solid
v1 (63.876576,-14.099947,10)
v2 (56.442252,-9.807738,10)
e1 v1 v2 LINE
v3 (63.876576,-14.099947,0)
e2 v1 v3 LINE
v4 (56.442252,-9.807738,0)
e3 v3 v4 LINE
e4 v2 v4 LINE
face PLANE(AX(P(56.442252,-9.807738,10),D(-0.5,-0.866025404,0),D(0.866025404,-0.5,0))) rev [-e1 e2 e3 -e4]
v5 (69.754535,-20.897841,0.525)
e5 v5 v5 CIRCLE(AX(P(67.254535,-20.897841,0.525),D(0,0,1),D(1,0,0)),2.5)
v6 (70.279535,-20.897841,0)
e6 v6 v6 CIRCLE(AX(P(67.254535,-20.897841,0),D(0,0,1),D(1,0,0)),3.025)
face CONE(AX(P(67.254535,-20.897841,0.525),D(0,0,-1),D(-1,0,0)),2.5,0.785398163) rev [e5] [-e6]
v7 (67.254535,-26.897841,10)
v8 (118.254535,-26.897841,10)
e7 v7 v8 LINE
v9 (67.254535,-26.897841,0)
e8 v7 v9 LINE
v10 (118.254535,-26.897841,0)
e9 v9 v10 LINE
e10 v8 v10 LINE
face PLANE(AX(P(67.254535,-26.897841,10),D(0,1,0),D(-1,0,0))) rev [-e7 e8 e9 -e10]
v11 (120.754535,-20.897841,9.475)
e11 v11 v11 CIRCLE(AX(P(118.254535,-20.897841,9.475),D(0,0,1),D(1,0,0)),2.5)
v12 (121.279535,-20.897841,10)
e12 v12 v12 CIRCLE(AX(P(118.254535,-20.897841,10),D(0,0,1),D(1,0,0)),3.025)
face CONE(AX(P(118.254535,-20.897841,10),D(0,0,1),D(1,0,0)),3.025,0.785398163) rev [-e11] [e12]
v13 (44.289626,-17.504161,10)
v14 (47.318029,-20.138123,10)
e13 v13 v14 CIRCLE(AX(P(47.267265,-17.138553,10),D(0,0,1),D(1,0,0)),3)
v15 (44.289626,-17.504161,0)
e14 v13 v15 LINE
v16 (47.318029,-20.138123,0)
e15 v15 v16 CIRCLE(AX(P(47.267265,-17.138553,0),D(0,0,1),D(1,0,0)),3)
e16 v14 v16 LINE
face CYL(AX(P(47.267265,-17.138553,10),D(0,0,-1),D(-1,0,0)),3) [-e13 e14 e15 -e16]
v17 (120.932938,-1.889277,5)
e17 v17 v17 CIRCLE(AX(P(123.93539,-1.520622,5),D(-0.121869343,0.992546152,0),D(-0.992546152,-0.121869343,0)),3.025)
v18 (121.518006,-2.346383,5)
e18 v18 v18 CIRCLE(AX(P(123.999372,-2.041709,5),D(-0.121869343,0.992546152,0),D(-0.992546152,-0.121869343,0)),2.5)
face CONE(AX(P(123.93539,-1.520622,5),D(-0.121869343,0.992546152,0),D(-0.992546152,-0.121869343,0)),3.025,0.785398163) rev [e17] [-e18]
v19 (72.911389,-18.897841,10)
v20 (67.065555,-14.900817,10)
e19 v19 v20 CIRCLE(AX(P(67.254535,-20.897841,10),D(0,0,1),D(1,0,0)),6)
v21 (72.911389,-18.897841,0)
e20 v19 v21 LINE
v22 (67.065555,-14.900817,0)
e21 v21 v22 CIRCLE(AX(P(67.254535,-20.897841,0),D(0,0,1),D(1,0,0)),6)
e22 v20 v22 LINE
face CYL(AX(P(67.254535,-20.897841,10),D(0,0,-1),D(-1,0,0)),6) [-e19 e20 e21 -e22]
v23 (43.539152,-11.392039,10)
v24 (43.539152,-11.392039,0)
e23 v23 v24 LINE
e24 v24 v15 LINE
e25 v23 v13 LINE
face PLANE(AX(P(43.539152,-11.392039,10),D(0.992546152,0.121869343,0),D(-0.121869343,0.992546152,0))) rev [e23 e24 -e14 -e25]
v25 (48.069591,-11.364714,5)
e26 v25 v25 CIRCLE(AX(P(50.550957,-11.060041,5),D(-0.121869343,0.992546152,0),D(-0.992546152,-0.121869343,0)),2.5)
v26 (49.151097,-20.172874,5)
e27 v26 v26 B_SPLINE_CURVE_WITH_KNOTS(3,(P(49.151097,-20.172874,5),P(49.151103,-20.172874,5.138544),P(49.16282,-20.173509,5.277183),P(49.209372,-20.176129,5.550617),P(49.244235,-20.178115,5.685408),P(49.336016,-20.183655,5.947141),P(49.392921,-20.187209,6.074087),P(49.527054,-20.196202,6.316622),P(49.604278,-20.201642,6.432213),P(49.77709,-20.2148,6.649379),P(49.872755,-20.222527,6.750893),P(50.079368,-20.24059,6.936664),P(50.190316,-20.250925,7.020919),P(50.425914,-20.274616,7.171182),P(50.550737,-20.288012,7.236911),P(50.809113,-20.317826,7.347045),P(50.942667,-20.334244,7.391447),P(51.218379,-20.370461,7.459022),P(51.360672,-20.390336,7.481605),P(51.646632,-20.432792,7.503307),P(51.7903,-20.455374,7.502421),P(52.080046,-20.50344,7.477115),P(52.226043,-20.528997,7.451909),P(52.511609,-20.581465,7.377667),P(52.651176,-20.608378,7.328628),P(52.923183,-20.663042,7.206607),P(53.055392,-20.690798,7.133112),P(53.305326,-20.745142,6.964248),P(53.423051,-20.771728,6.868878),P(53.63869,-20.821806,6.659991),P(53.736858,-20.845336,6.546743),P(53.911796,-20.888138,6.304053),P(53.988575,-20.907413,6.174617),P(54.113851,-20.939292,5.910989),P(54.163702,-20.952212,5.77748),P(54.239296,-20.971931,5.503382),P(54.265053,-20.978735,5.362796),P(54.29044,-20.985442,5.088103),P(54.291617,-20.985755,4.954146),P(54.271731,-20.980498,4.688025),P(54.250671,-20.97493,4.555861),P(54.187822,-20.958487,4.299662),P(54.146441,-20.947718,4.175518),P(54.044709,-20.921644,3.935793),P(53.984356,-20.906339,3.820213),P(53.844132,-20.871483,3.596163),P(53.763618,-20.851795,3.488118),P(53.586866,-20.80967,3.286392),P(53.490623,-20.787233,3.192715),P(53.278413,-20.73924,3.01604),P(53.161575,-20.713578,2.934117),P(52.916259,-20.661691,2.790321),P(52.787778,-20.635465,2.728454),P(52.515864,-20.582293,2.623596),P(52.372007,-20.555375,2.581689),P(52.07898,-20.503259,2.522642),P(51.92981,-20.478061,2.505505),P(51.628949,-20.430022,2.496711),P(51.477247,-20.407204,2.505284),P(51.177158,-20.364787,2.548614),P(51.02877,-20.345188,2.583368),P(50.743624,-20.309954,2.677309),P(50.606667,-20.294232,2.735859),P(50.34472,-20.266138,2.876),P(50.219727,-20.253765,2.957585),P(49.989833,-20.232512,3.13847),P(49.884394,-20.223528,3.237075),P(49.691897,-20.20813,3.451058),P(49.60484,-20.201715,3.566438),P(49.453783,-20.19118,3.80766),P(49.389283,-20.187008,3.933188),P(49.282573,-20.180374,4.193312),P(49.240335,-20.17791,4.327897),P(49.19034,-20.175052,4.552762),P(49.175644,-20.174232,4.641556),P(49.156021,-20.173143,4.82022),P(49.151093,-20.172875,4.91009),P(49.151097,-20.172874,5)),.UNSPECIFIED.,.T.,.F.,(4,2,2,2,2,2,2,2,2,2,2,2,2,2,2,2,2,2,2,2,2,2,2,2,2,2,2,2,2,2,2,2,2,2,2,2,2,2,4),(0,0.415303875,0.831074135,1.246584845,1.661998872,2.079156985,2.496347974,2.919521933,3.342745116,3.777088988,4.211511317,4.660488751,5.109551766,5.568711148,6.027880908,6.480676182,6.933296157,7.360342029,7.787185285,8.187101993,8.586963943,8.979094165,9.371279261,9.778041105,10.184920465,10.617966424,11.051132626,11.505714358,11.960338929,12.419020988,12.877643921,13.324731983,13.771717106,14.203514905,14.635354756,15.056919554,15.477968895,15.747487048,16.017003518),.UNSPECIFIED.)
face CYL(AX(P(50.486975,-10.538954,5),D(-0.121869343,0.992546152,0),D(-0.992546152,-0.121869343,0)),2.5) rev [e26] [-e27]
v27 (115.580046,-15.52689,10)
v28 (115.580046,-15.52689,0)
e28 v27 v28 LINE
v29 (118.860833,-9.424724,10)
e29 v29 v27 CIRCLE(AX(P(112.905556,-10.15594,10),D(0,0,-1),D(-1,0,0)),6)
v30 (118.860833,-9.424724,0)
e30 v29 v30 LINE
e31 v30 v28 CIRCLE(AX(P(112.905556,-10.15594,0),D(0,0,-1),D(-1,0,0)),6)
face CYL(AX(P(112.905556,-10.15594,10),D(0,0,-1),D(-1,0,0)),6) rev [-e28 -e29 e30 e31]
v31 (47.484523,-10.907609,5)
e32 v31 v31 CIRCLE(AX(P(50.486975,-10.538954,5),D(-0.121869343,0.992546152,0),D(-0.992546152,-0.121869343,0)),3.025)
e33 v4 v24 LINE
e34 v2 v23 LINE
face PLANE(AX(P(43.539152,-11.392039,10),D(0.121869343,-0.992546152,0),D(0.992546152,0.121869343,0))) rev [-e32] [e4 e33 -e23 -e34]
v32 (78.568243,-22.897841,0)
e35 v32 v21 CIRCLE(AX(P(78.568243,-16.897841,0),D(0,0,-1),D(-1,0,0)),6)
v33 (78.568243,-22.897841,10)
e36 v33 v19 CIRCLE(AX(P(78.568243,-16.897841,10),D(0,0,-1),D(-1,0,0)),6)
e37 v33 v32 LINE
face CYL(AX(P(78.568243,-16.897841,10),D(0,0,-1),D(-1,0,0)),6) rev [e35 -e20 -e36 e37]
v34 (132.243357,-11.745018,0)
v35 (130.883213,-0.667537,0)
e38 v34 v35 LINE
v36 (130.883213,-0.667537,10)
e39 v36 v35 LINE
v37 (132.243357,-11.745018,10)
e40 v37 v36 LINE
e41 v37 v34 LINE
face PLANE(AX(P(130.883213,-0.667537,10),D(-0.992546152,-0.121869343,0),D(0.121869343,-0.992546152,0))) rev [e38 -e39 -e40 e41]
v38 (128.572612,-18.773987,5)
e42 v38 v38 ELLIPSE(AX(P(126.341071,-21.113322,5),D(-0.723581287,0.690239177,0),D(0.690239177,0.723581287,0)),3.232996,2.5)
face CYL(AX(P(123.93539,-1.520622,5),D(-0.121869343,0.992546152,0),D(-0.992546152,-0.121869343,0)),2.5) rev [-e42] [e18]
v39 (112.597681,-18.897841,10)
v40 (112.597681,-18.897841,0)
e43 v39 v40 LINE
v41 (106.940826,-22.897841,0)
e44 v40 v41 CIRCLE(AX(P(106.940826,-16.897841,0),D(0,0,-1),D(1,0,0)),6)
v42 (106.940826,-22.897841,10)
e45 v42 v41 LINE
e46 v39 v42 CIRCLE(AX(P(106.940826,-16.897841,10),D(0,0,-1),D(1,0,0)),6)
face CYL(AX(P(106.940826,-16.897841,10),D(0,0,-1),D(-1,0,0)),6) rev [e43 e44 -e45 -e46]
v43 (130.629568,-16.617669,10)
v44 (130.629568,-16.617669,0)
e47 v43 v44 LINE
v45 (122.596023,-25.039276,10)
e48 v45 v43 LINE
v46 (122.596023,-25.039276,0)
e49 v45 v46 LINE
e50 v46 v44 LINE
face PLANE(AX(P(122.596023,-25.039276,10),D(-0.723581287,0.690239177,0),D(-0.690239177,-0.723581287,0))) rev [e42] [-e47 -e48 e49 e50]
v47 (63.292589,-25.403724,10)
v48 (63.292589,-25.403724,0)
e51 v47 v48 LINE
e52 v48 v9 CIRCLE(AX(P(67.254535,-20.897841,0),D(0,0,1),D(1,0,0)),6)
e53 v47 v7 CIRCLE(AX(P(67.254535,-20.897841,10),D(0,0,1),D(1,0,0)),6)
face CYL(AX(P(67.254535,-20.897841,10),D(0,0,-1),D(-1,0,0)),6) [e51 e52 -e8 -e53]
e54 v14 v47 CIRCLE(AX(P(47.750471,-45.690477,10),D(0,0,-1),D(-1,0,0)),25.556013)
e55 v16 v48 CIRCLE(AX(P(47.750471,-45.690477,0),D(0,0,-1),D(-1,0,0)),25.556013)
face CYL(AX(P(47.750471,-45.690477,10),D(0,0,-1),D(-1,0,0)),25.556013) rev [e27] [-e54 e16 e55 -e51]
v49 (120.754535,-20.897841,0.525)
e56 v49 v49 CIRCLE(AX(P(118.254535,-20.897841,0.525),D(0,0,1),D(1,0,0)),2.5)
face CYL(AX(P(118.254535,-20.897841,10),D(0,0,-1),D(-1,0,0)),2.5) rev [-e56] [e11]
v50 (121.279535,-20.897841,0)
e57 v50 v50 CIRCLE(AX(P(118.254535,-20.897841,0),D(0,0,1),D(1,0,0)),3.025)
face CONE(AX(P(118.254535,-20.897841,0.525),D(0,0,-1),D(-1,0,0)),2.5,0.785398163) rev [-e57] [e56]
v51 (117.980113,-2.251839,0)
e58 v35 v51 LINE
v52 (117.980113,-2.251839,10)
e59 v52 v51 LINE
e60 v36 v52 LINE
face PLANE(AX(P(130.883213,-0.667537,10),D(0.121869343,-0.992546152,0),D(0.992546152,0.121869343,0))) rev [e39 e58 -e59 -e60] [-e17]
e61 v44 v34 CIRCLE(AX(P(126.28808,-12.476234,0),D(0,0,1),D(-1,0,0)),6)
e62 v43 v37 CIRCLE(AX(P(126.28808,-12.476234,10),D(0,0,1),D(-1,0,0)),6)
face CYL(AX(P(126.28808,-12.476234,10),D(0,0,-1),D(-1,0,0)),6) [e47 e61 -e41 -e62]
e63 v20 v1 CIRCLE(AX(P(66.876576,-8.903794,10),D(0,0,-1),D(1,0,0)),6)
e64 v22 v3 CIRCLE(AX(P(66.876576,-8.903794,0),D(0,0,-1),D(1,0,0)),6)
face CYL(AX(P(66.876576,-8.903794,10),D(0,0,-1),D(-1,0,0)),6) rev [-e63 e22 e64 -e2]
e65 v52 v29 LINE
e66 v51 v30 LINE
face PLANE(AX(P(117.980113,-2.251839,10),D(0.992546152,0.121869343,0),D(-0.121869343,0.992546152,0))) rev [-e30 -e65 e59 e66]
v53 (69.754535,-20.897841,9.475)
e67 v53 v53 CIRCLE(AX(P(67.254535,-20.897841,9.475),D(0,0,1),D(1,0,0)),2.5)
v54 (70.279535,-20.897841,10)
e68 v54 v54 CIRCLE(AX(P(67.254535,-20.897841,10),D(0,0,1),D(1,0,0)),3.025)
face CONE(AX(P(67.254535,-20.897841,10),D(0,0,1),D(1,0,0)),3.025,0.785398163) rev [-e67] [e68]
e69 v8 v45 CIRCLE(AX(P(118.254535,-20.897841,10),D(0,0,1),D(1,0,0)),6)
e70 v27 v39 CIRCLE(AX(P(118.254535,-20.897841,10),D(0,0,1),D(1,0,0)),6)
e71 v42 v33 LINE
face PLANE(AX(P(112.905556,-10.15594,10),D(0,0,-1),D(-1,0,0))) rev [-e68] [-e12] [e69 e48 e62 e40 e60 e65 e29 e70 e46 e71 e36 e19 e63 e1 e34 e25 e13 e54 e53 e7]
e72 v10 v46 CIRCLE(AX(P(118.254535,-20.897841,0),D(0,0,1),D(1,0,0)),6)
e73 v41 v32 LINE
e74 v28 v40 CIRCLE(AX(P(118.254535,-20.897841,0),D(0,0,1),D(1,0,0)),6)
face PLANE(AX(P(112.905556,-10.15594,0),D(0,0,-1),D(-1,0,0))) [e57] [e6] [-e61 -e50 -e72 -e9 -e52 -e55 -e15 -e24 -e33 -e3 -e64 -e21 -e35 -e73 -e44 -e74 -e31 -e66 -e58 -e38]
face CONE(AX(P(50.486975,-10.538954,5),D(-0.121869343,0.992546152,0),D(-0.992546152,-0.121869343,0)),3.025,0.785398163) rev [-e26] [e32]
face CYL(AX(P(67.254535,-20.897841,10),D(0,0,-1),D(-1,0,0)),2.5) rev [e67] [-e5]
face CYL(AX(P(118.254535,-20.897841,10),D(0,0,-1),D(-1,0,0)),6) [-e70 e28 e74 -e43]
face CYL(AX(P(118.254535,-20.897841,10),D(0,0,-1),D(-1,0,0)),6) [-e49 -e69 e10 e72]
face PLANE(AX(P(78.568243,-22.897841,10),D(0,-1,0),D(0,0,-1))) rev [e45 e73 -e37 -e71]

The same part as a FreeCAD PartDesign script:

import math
import FreeCAD as App
import Part
import Sketcher
Q = App.Units.Quantity


def add_polygon(sketch, points):
    """Adds a closed chain of lines whose ends are joined by coincident constraints."""
    first, n = sketch.GeometryCount, len(points)
    for a, b in zip(points, points[1:] + points[:1]):
        sketch.addGeometry(Part.LineSegment(App.Vector(*a, 0), App.Vector(*b, 0)), False)
    for i in range(n):
        sketch.addConstraint(Sketcher.Constraint("Coincident", first + i, 2, first + (i + 1) % n, 1))

doc = App.newDocument("Part")
body = doc.addObject("PartDesign::Body", "Body")

# Sketch on XY plane
sketch1 = body.newObject("Sketcher::SketchObject", "Sketch")
sketch1.AttachmentSupport = (doc.getObject("XY_Plane"), [""])
sketch1.MapMode = "FlatFace"
sketch1.addGeometry([
    Part.LineSegment(App.Vector(132.243357, -11.745018, 0), App.Vector(130.883213, -0.667537, 0)),  # 0
    Part.LineSegment(App.Vector(130.883213, -0.667537, 0), App.Vector(117.980113, -2.251839, 0)),  # 1
    Part.LineSegment(App.Vector(117.980113, -2.251839, 0), App.Vector(118.860833, -9.424724, 0)),  # 2
    Part.ArcOfCircle(Part.Circle(App.Vector(112.905556, -10.15594, 0), App.Vector(0, 0, 1), 6), math.radians(-63.528779), math.radians(7)),  # 3
    Part.ArcOfCircle(Part.Circle(App.Vector(118.254535, -20.897841, 0), App.Vector(0, 0, 1), 6), math.radians(116.471221), math.radians(160.528779)),  # 4
    Part.ArcOfCircle(Part.Circle(App.Vector(106.940826, -16.897841, 0), App.Vector(0, 0, 1), 6), math.radians(-90), math.radians(-19.471221)),  # 5
    Part.LineSegment(App.Vector(106.940826, -22.897841, 0), App.Vector(78.568243, -22.897841, 0)),  # 6
    Part.ArcOfCircle(Part.Circle(App.Vector(78.568243, -16.897841, 0), App.Vector(0, 0, 1), 6), math.radians(-160.528779), math.radians(-90)),  # 7
    Part.ArcOfCircle(Part.Circle(App.Vector(67.254535, -20.897841, 0), App.Vector(0, 0, 1), 6), math.radians(19.471221), math.radians(91.80492)),  # 8
    Part.ArcOfCircle(Part.Circle(App.Vector(66.876576, -8.903794, 0), App.Vector(0, 0, 1), 6), math.radians(-120), math.radians(-88.19508)),  # 9
    Part.LineSegment(App.Vector(63.876576, -14.099947, 0), App.Vector(56.442252, -9.807738, 0)),  # 10
    Part.LineSegment(App.Vector(56.442252, -9.807738, 0), App.Vector(43.539152, -11.392039, 0)),  # 11
    Part.LineSegment(App.Vector(43.539152, -11.392039, 0), App.Vector(44.289626, -17.504161, 0)),  # 12
    Part.ArcOfCircle(Part.Circle(App.Vector(47.267265, -17.138553, 0), App.Vector(0, 0, 1), 3), math.radians(-173), math.radians(-89.030432)),  # 13
    Part.ArcOfCircle(Part.Circle(App.Vector(47.750471, -45.690477, 0), App.Vector(0, 0, 1), 25.556013), math.radians(52.543495), math.radians(90.969568)),  # 14
    Part.ArcOfCircle(Part.Circle(App.Vector(67.254535, -20.897841, 0), App.Vector(0, 0, 1), 6), math.radians(-131.324607), math.radians(-90)),  # 15
    Part.LineSegment(App.Vector(67.254535, -26.897841, 0), App.Vector(118.254535, -26.897841, 0)),  # 16
    Part.ArcOfCircle(Part.Circle(App.Vector(118.254535, -20.897841, 0), App.Vector(0, 0, 1), 6), math.radians(-90), math.radians(-43.649045)),  # 17
    Part.LineSegment(App.Vector(122.596023, -25.039276, 0), App.Vector(130.629568, -16.617669, 0)),  # 18
    Part.ArcOfCircle(Part.Circle(App.Vector(126.28808, -12.476234, 0), App.Vector(0, 0, 1), 6), math.radians(-43.649045), math.radians(7)),  # 19
    Part.Circle(App.Vector(118.254535, -20.897841, 0), App.Vector(0, 0, 1), 2.5),  # 20
    Part.Circle(App.Vector(67.254535, -20.897841, 0), App.Vector(0, 0, 1), 2.5),  # 21
], False)
sketch1.addConstraint([
    Sketcher.Constraint("Coincident", 0, 2, 1, 1),
    Sketcher.Constraint("Coincident", 1, 2, 2, 1),
    Sketcher.Constraint("Tangent", 2, 2, 3, 2),
    Sketcher.Constraint("Tangent", 3, 1, 4, 1),
    Sketcher.Constraint("Tangent", 4, 2, 5, 2),
    Sketcher.Constraint("Tangent", 5, 1, 6, 1),
    Sketcher.Constraint("Tangent", 6, 2, 7, 2),
    Sketcher.Constraint("Tangent", 7, 1, 8, 1),
    Sketcher.Constraint("Tangent", 8, 2, 9, 2),
    Sketcher.Constraint("Tangent", 9, 1, 10, 1),
    Sketcher.Constraint("Coincident", 10, 2, 11, 1),
    Sketcher.Constraint("Coincident", 11, 2, 12, 1),
    Sketcher.Constraint("Tangent", 12, 2, 13, 1),
    Sketcher.Constraint("Tangent", 13, 2, 14, 2),
    Sketcher.Constraint("Coincident", 14, 1, 15, 1),
    Sketcher.Constraint("Tangent", 15, 2, 16, 1),
    Sketcher.Constraint("Tangent", 16, 2, 17, 1),
    Sketcher.Constraint("Tangent", 17, 2, 18, 1),
    Sketcher.Constraint("Tangent", 18, 2, 19, 1),
    Sketcher.Constraint("Tangent", 19, 2, 0, 1),
    Sketcher.Constraint("Horizontal", 6),
    Sketcher.Constraint("Horizontal", 16),
    Sketcher.Constraint("Coincident", 15, 3, 8, 3),
    Sketcher.Constraint("Coincident", 17, 3, 4, 3),
    Sketcher.Constraint("Coincident", 20, 3, 4, 3),
    Sketcher.Constraint("Coincident", 21, 3, 8, 3),
    Sketcher.Constraint("Equal", 3, 4),
    Sketcher.Constraint("Equal", 4, 5),
    Sketcher.Constraint("Equal", 5, 7),
    Sketcher.Constraint("Equal", 7, 8),
    Sketcher.Constraint("Equal", 8, 9),
    Sketcher.Constraint("Equal", 9, 15),
    Sketcher.Constraint("Equal", 15, 17),
    Sketcher.Constraint("Equal", 17, 19),
    Sketcher.Constraint("Equal", 20, 21),
    Sketcher.Constraint("Perpendicular", 0, 1),
    Sketcher.Constraint("Perpendicular", 1, 2),
    Sketcher.Constraint("Perpendicular", 2, 11),
    Sketcher.Constraint("Perpendicular", 11, 12),
    Sketcher.Constraint("Equal", 1, 11),
    Sketcher.Constraint("Diameter", 20, 5.0),
    Sketcher.Constraint("Radius", 3, 6.0),
    Sketcher.Constraint("Radius", 13, 3.0),
    Sketcher.Constraint("DistanceX", 16, 1, 16, 2, 51.0),
    Sketcher.Constraint("Angle", 0, Q("97 deg")),
    Sketcher.Constraint("Angle", 10, Q("150 deg")),
    Sketcher.Constraint("Distance", 1, 13.0),
    Sketcher.Constraint("DistanceY", 4, 3, 5, 3, 4.0),
    Sketcher.Constraint("Radius", 14, 25.556013),
    Sketcher.Constraint("DistanceY", 4, 3, 3, 3, 10.7419),
    Sketcher.Constraint("DistanceY", 3, 3, 1, 2, 7.904102),
    Sketcher.Constraint("Distance", 0, 11.160671),
    Sketcher.Constraint("DistanceY", 3, 3, -1, 1, 10.15594),
    Sketcher.Constraint("DistanceX", -1, 1, 14, 3, 47.750471),
    Sketcher.Constraint("DistanceX", -1, 1, 19, 3, 126.28808),
    Sketcher.Constraint("DistanceY", 11, 2, -1, 1, 11.392039),
    Sketcher.Constraint("DistanceY", 12, 2, -1, 1, 17.504161),
    Sketcher.Constraint("DistanceX", -1, 1, 13, 2, 47.318029),
])
pad1 = body.newObject("PartDesign::Pad", "Pad")
pad1.Profile = sketch1
pad1.Length = 10

# Sketch on YZ plane
sketch2 = body.newObject("Sketcher::SketchObject", "Sketch001")
sketch2.AttachmentSupport = (doc.getObject("YZ_Plane"), [""])
sketch2.MapMode = "FlatFace"
sketch2.AttachmentOffset = App.Placement(App.Vector(0, 0, 67.254535), App.Rotation())
add_polygon(sketch2, [(-20.897841, 0), (-20.897841, 10), (-23.922841, 10), (-23.397841, 9.475), (-23.397841, 0.525), (-23.922841, 0)])  # lines 0-5
sketch2.addGeometry(Part.LineSegment(App.Vector(-20.897841, 10, 0), App.Vector(-20.897841, 0, 0)), True)  # axis
sketch2.addConstraint([
    Sketcher.Constraint("Vertical", 0),
    Sketcher.Constraint("Horizontal", 1),
    Sketcher.Constraint("Vertical", 3),
    Sketcher.Constraint("Horizontal", 5),
    Sketcher.Constraint("Vertical", 6),
    Sketcher.Constraint("Coincident", 6, 1, 0, 2),
    Sketcher.Constraint("PointOnObject", 4, 2, -1),
    Sketcher.Constraint("PointOnObject", 6, 2, -1),
    Sketcher.Constraint("Perpendicular", 2, 4),
    Sketcher.Constraint("Vertical", 1, 2, 4, 2),
    Sketcher.Constraint("Equal", 2, 4),
    Sketcher.Constraint("DistanceY", 0, 1, 0, 2, 10.0),
    Sketcher.Constraint("DistanceY", 3, 2, 3, 1, 8.95),
    Sketcher.Constraint("DistanceX", 2, 2, 0, 2, 2.5),
    Sketcher.Constraint("DistanceX", 0, 2, -1, 1, 20.897841),
])
groove = body.newObject("PartDesign::Groove", "Groove")
groove.Profile = sketch2
groove.ReferenceAxis = (sketch2, ["Axis0"])
groove.Angle = 360
doc.recompute()

linearpattern = body.newObject("PartDesign::LinearPattern", "LinearPattern")
linearpattern.Originals = [groove]
linearpattern.Direction = (doc.getObject("X_Axis"), [""])
linearpattern.Mode = "offset"
linearpattern.Offset = 51
linearpattern.Occurrences = 2
body.Tip = linearpattern

# Sketch on an angled plane
sketch3 = body.newObject("Sketcher::SketchObject", "Sketch002")
sketch3.Placement = App.Placement(App.Vector(2.024641, -16.48938, 0), App.Rotation(App.Vector(-0.992546152, -0.121869343, 0), App.Vector(0, 0, 1.000000001), App.Vector(-0.121869343, 0.992546152, 0), "ZXY"))
sketch3.addGeometry([
    Part.Circle(App.Vector(-48.826278, 5, 0), App.Vector(0, 0, 1), 2.5),
    Part.Circle(App.Vector(-122.826278, 5, 0), App.Vector(0, 0, 1), 2.5),
], False)
sketch3.addConstraint([
    Sketcher.Constraint("Equal", 0, 1),
    Sketcher.Constraint("Horizontal", 0, 3, 1, 3),
    Sketcher.Constraint("Diameter", 0, 5.0),
    Sketcher.Constraint("DistanceY", -1, 1, 0, 3, 5.0),
    Sketcher.Constraint("DistanceX", 1, 3, 0, 3, 74.0),
    Sketcher.Constraint("DistanceX", 0, 3, -1, 1, 48.826278),
])
doc.recompute()
hole = body.newObject("PartDesign::Hole", "Hole")
hole.Profile = sketch3
hole.ThreadType = "None"
hole.Diameter = 5
hole.DepthType = "ThroughAll"
hole.HoleCutType = "Countersink"
hole.HoleCutDiameter = 6.05
hole.HoleCutCountersinkAngle = 90

doc.recompute()
